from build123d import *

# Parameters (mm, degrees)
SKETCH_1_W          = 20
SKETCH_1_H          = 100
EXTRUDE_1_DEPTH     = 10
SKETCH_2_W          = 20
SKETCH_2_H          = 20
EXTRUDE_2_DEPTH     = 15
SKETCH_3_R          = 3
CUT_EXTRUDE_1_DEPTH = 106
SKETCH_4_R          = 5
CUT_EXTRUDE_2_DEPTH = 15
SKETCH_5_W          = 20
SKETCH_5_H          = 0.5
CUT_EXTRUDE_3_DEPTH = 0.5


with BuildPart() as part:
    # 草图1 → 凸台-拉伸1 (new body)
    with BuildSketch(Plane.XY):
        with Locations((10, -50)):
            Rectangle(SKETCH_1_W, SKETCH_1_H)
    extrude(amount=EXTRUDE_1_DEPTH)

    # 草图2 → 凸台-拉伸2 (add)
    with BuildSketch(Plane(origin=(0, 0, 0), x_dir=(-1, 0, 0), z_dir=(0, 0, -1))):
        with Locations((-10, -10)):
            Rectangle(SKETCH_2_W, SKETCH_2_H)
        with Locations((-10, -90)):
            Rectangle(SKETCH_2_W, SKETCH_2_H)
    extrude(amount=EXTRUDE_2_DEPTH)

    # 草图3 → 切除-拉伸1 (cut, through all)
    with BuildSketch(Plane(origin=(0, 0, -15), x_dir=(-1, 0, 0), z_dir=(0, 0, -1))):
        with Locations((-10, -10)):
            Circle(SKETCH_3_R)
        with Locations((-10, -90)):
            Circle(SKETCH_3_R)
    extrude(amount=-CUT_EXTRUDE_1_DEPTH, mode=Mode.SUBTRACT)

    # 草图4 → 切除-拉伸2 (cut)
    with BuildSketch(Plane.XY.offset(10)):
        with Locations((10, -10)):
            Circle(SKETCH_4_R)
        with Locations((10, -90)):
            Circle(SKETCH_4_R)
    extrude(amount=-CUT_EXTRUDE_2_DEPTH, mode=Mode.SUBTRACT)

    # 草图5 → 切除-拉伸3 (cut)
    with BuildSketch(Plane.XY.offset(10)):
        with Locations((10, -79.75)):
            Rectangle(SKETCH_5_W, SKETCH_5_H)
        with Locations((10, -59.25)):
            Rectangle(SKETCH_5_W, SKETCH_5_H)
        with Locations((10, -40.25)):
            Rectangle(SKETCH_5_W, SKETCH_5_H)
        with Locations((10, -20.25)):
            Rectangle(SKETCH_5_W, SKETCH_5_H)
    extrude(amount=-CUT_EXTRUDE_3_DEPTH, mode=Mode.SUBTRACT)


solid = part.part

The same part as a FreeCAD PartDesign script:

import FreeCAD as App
import Part
import Sketcher
Q = App.Units.Quantity

doc = App.newDocument("Part")
body = doc.addObject("PartDesign::Body", "Body")

sketch1 = body.newObject("Sketcher::SketchObject", "Sketch")
sketch1.AttachmentSupport = (doc.getObject("XY_Plane"), [""])
sketch1.MapMode = "FlatFace"
sketch1.addGeometry(Part.LineSegment(App.Vector(0, 0, 0), App.Vector(0, -100, 0)), False)
sketch1.addGeometry(Part.LineSegment(App.Vector(0, -100, 0), App.Vector(20, -100, 0)), False)
sketch1.addGeometry(Part.LineSegment(App.Vector(20, -100, 0), App.Vector(20, 0, 0)), False)
sketch1.addGeometry(Part.LineSegment(App.Vector(20, 0, 0), App.Vector(0, 0, 0)), False)
sketch1.addConstraint(Sketcher.Constraint("Coincident", 0, 2, 1, 1))
sketch1.addConstraint(Sketcher.Constraint("Coincident", 1, 2, 2, 1))
sketch1.addConstraint(Sketcher.Constraint("Coincident", 2, 2, 3, 1))
sketch1.addConstraint(Sketcher.Constraint("Coincident", 3, 2, 0, 1))
sketch1.addConstraint(Sketcher.Constraint("Vertical", 0))
sketch1.addConstraint(Sketcher.Constraint("Horizontal", 1))
sketch1.addConstraint(Sketcher.Constraint("Vertical", 2))
sketch1.addConstraint(Sketcher.Constraint("Horizontal", 3))
sketch1.addConstraint(Sketcher.Constraint("Coincident", 3, 2, -1, 1))
sketch1.addConstraint(Sketcher.Constraint("DistanceX", 1, 1, 1, 2, Q("20 mm")))
sketch1.addConstraint(Sketcher.Constraint("DistanceY", 0, 2, 0, 1, Q("100 mm")))
pad1 = body.newObject("PartDesign::Pad", "Pad")
pad1.Profile = sketch1
pad1.Length = 10

sketch2 = body.newObject("Sketcher::SketchObject", "Sketch001")
sketch2.AttachmentSupport = (doc.getObject("XY_Plane"), [""])
sketch2.MapMode = "FlatFace"
sketch2.addGeometry(Part.LineSegment(App.Vector(20, 0, 0), App.Vector(20, -20, 0)), False)
sketch2.addGeometry(Part.LineSegment(App.Vector(20, -20, 0), App.Vector(0, -20, 0)), False)
sketch2.addGeometry(Part.LineSegment(App.Vector(0, -20, 0), App.Vector(0, 0, 0)), False)
sketch2.addGeometry(Part.LineSegment(App.Vector(0, 0, 0), App.Vector(20, 0, 0)), False)
sketch2.addGeometry(Part.LineSegment(App.Vector(20, -80, 0), App.Vector(20, -100, 0)), False)
sketch2.addGeometry(Part.LineSegment(App.Vector(20, -100, 0), App.Vector(0, -100, 0)), False)
sketch2.addGeometry(Part.LineSegment(App.Vector(0, -100, 0), App.Vector(0, -80, 0)), False)
sketch2.addGeometry(Part.LineSegment(App.Vector(0, -80, 0), App.Vector(20, -80, 0)), False)
sketch2.addConstraint(Sketcher.Constraint("Coincident", 0, 2, 1, 1))
sketch2.addConstraint(Sketcher.Constraint("Coincident", 1, 2, 2, 1))
sketch2.addConstraint(Sketcher.Constraint("Coincident", 2, 2, 3, 1))
sketch2.addConstraint(Sketcher.Constraint("Coincident", 3, 2, 0, 1))
sketch2.addConstraint(Sketcher.Constraint("Coincident", 4, 2, 5, 1))
sketch2.addConstraint(Sketcher.Constraint("Coincident", 5, 2, 6, 1))
sketch2.addConstraint(Sketcher.Constraint("Coincident", 6, 2, 7, 1))
sketch2.addConstraint(Sketcher.Constraint("Coincident", 7, 2, 4, 1))
sketch2.addConstraint(Sketcher.Constraint("Vertical", 0))
sketch2.addConstraint(Sketcher.Constraint("Horizontal", 1))
sketch2.addConstraint(Sketcher.Constraint("Vertical", 2))
sketch2.addConstraint(Sketcher.Constraint("Horizontal", 3))
sketch2.addConstraint(Sketcher.Constraint("Vertical", 4))
sketch2.addConstraint(Sketcher.Constraint("Horizontal", 5))
sketch2.addConstraint(Sketcher.Constraint("Vertical", 6))
sketch2.addConstraint(Sketcher.Constraint("Horizontal", 7))
sketch2.addConstraint(Sketcher.Constraint("Coincident", 2, 2, -1, 1))
sketch2.addConstraint(Sketcher.Constraint("PointOnObject", 5, 2, -2))
sketch2.addConstraint(Sketcher.Constraint("Vertical", 3, 2, 4, 2))
sketch2.addConstraint(Sketcher.Constraint("Equal", 7, 0))
sketch2.addConstraint(Sketcher.Constraint("Equal", 2, 4))
sketch2.addConstraint(Sketcher.Constraint("DistanceX", 1, 2, 1, 1, Q("20 mm")))
sketch2.addConstraint(Sketcher.Constraint("DistanceY", 4, 2, -1, 1, Q("100 mm")))
pad2 = body.newObject("PartDesign::Pad", "Pad001")
pad2.Profile = sketch2
pad2.Length = 15
pad2.Reversed = True

sketch3 = body.newObject("Sketcher::SketchObject", "Sketch002")
sketch3.AttachmentSupport = (doc.getObject("XY_Plane"), [""])
sketch3.MapMode = "FlatFace"
sketch3.AttachmentOffset = App.Placement(App.Vector(0, 0, -15), App.Rotation())
sketch3.addGeometry(Part.Circle(App.Vector(10, -10, 0), App.Vector(0, 0, 1), 3), False)
sketch3.addGeometry(Part.Circle(App.Vector(10, -90, 0), App.Vector(0, 0, 1), 3), False)
sketch3.addConstraint(Sketcher.Constraint("Equal", 0, 1))
sketch3.addConstraint(Sketcher.Constraint("Vertical", 0, 3, 1, 3))
sketch3.addConstraint(Sketcher.Constraint("Diameter", 0, Q("6 mm")))
sketch3.addConstraint(Sketcher.Constraint("DistanceX", -1, 1, 0, 3, Q("10 mm")))
sketch3.addConstraint(Sketcher.Constraint("DistanceY", 0, 3, -1, 1, Q("10 mm")))
sketch3.addConstraint(Sketcher.Constraint("DistanceY", 1, 3, -1, 1, Q("90 mm")))
pocket1 = body.newObject("PartDesign::Pocket", "Pocket")
pocket1.Profile = sketch3
pocket1.Type = "ThroughAll"
pocket1.Reversed = True

sketch4 = body.newObject("Sketcher::SketchObject", "Sketch003")
sketch4.AttachmentSupport = (doc.getObject("XY_Plane"), [""])
sketch4.MapMode = "FlatFace"
sketch4.AttachmentOffset = App.Placement(App.Vector(0, 0, 10), App.Rotation())
sketch4.addGeometry(Part.Circle(App.Vector(10, -10, 0), App.Vector(0, 0, 1), 5), False)
sketch4.addGeometry(Part.Circle(App.Vector(10, -90, 0), App.Vector(0, 0, 1), 5), False)
sketch4.addConstraint(Sketcher.Constraint("Equal", 0, 1))
sketch4.addConstraint(Sketcher.Constraint("Vertical", 0, 3, 1, 3))
sketch4.addConstraint(Sketcher.Constraint("Diameter", 0, Q("10 mm")))
sketch4.addConstraint(Sketcher.Constraint("DistanceX", -1, 1, 0, 3, Q("10 mm")))
sketch4.addConstraint(Sketcher.Constraint("DistanceY", 0, 3, -1, 1, Q("10 mm")))
sketch4.addConstraint(Sketcher.Constraint("DistanceY", 1, 3, -1, 1, Q("90 mm")))
pocket2 = body.newObject("PartDesign::Pocket", "Pocket001")
pocket2.Profile = sketch4
pocket2.Length = 15

sketch5 = body.newObject("Sketcher::SketchObject", "Sketch004")
sketch5.AttachmentSupport = (doc.getObject("XY_Plane"), [""])
sketch5.MapMode = "FlatFace"
sketch5.AttachmentOffset = App.Placement(App.Vector(0, 0, 10), App.Rotation())
sketch5.addGeometry(Part.LineSegment(App.Vector(0, -79.5, 0), App.Vector(0, -80, 0)), False)
sketch5.addGeometry(Part.LineSegment(App.Vector(0, -80, 0), App.Vector(20, -80, 0)), False)
sketch5.addGeometry(Part.LineSegment(App.Vector(20, -80, 0), App.Vector(20, -79.5, 0)), False)
sketch5.addGeometry(Part.LineSegment(App.Vector(20, -79.5, 0), App.Vector(0, -79.5, 0)), False)
sketch5.addGeometry(Part.LineSegment(App.Vector(0, -59, 0), App.Vector(0, -59.5, 0)), False)
sketch5.addGeometry(Part.LineSegment(App.Vector(0, -59.5, 0), App.Vector(20, -59.5, 0)), False)
sketch5.addGeometry(Part.LineSegment(App.Vector(20, -59.5, 0), App.Vector(20, -59, 0)), False)
sketch5.addGeometry(Part.LineSegment(App.Vector(20, -59, 0), App.Vector(0, -59, 0)), False)
sketch5.addGeometry(Part.LineSegment(App.Vector(0, -40, 0), App.Vector(0, -40.5, 0)), False)
sketch5.addGeometry(Part.LineSegment(App.Vector(0, -40.5, 0), App.Vector(20, -40.5, 0)), False)
sketch5.addGeometry(Part.LineSegment(App.Vector(20, -40.5, 0), App.Vector(20, -40, 0)), False)
sketch5.addGeometry(Part.LineSegment(App.Vector(20, -40, 0), App.Vector(0, -40, 0)), False)
sketch5.addGeometry(Part.LineSegment(App.Vector(0, -20, 0), App.Vector(0, -20.5, 0)), False)
sketch5.addGeometry(Part.LineSegment(App.Vector(0, -20.5, 0), App.Vector(20, -20.5, 0)), False)
sketch5.addGeometry(Part.LineSegment(App.Vector(20, -20.5, 0), App.Vector(20, -20, 0)), False)
sketch5.addGeometry(Part.LineSegment(App.Vector(20, -20, 0), App.Vector(0, -20, 0)), False)
sketch5.addConstraint(Sketcher.Constraint("Coincident", 0, 2, 1, 1))
sketch5.addConstraint(Sketcher.Constraint("Coincident", 1, 2, 2, 1))
sketch5.addConstraint(Sketcher.Constraint("Coincident", 2, 2, 3, 1))
sketch5.addConstraint(Sketcher.Constraint("Coincident", 3, 2, 0, 1))
sketch5.addConstraint(Sketcher.Constraint("Coincident", 4, 2, 5, 1))
sketch5.addConstraint(Sketcher.Constraint("Coincident", 5, 2, 6, 1))
sketch5.addConstraint(Sketcher.Constraint("Coincident", 6, 2, 7, 1))
sketch5.addConstraint(Sketcher.Constraint("Coincident", 7, 2, 4, 1))
sketch5.addConstraint(Sketcher.Constraint("Coincident", 8, 2, 9, 1))
sketch5.addConstraint(Sketcher.Constraint("Coincident", 9, 2, 10, 1))
sketch5.addConstraint(Sketcher.Constraint("Coincident", 10, 2, 11, 1))
sketch5.addConstraint(Sketcher.Constraint("Coincident", 11, 2, 8, 1))
sketch5.addConstraint(Sketcher.Constraint("Coincident", 12, 2, 13, 1))
sketch5.addConstraint(Sketcher.Constraint("Coincident", 13, 2, 14, 1))
sketch5.addConstraint(Sketcher.Constraint("Coincident", 14, 2, 15, 1))
sketch5.addConstraint(Sketcher.Constraint("Coincident", 15, 2, 12, 1))
sketch5.addConstraint(Sketcher.Constraint("Vertical", 0))
sketch5.addConstraint(Sketcher.Constraint("Horizontal", 1))
sketch5.addConstraint(Sketcher.Constraint("Vertical", 2))
sketch5.addConstraint(Sketcher.Constraint("Horizontal", 3))
sketch5.addConstraint(Sketcher.Constraint("Vertical", 4))
sketch5.addConstraint(Sketcher.Constraint("Horizontal", 5))
sketch5.addConstraint(Sketcher.Constraint("Vertical", 6))
sketch5.addConstraint(Sketcher.Constraint("Horizontal", 7))
sketch5.addConstraint(Sketcher.Constraint("Vertical", 8))
sketch5.addConstraint(Sketcher.Constraint("Horizontal", 9))
sketch5.addConstraint(Sketcher.Constraint("Vertical", 10))
sketch5.addConstraint(Sketcher.Constraint("Horizontal", 11))
sketch5.addConstraint(Sketcher.Constraint("Vertical", 12))
sketch5.addConstraint(Sketcher.Constraint("Horizontal", 13))
sketch5.addConstraint(Sketcher.Constraint("Vertical", 14))
sketch5.addConstraint(Sketcher.Constraint("Horizontal", 15))
sketch5.addConstraint(Sketcher.Constraint("PointOnObject", 0, 2, -2))
sketch5.addConstraint(Sketcher.Constraint("PointOnObject", 4, 2, -2))
sketch5.addConstraint(Sketcher.Constraint("PointOnObject", 8, 2, -2))
sketch5.addConstraint(Sketcher.Constraint("PointOnObject", 12, 2, -2))
sketch5.addConstraint(Sketcher.Constraint("Vertical", 2, 2, 5, 2))
sketch5.addConstraint(Sketcher.Constraint("Vertical", 6, 2, 9, 2))
sketch5.addConstraint(Sketcher.Constraint("Vertical", 10, 2, 13, 2))
sketch5.addConstraint(Sketcher.Constraint("Equal", 2, 4))
sketch5.addConstraint(Sketcher.Constraint("Equal", 6, 8))
sketch5.addConstraint(Sketcher.Constraint("Equal", 10, 12))
sketch5.addConstraint(Sketcher.Constraint("DistanceX", 1, 1, 1, 2, Q("20 mm")))
sketch5.addConstraint(Sketcher.Constraint("DistanceY", 0, 2, 0, 1, Q("0.5 mm")))
sketch5.addConstraint(Sketcher.Constraint("DistanceY", 0, 2, -1, 1, Q("80 mm")))
sketch5.addConstraint(Sketcher.Constraint("DistanceY", 6, 2, -1, 1, Q("59 mm")))
sketch5.addConstraint(Sketcher.Constraint("DistanceY", 10, 2, -1, 1, Q("40 mm")))
sketch5.addConstraint(Sketcher.Constraint("DistanceY", 14, 2, -1, 1, Q("20 mm")))
pocket3 = body.newObject("PartDesign::Pocket", "Pocket002")
pocket3.Profile = sketch5
pocket3.Length = 0.5

doc.recompute()
